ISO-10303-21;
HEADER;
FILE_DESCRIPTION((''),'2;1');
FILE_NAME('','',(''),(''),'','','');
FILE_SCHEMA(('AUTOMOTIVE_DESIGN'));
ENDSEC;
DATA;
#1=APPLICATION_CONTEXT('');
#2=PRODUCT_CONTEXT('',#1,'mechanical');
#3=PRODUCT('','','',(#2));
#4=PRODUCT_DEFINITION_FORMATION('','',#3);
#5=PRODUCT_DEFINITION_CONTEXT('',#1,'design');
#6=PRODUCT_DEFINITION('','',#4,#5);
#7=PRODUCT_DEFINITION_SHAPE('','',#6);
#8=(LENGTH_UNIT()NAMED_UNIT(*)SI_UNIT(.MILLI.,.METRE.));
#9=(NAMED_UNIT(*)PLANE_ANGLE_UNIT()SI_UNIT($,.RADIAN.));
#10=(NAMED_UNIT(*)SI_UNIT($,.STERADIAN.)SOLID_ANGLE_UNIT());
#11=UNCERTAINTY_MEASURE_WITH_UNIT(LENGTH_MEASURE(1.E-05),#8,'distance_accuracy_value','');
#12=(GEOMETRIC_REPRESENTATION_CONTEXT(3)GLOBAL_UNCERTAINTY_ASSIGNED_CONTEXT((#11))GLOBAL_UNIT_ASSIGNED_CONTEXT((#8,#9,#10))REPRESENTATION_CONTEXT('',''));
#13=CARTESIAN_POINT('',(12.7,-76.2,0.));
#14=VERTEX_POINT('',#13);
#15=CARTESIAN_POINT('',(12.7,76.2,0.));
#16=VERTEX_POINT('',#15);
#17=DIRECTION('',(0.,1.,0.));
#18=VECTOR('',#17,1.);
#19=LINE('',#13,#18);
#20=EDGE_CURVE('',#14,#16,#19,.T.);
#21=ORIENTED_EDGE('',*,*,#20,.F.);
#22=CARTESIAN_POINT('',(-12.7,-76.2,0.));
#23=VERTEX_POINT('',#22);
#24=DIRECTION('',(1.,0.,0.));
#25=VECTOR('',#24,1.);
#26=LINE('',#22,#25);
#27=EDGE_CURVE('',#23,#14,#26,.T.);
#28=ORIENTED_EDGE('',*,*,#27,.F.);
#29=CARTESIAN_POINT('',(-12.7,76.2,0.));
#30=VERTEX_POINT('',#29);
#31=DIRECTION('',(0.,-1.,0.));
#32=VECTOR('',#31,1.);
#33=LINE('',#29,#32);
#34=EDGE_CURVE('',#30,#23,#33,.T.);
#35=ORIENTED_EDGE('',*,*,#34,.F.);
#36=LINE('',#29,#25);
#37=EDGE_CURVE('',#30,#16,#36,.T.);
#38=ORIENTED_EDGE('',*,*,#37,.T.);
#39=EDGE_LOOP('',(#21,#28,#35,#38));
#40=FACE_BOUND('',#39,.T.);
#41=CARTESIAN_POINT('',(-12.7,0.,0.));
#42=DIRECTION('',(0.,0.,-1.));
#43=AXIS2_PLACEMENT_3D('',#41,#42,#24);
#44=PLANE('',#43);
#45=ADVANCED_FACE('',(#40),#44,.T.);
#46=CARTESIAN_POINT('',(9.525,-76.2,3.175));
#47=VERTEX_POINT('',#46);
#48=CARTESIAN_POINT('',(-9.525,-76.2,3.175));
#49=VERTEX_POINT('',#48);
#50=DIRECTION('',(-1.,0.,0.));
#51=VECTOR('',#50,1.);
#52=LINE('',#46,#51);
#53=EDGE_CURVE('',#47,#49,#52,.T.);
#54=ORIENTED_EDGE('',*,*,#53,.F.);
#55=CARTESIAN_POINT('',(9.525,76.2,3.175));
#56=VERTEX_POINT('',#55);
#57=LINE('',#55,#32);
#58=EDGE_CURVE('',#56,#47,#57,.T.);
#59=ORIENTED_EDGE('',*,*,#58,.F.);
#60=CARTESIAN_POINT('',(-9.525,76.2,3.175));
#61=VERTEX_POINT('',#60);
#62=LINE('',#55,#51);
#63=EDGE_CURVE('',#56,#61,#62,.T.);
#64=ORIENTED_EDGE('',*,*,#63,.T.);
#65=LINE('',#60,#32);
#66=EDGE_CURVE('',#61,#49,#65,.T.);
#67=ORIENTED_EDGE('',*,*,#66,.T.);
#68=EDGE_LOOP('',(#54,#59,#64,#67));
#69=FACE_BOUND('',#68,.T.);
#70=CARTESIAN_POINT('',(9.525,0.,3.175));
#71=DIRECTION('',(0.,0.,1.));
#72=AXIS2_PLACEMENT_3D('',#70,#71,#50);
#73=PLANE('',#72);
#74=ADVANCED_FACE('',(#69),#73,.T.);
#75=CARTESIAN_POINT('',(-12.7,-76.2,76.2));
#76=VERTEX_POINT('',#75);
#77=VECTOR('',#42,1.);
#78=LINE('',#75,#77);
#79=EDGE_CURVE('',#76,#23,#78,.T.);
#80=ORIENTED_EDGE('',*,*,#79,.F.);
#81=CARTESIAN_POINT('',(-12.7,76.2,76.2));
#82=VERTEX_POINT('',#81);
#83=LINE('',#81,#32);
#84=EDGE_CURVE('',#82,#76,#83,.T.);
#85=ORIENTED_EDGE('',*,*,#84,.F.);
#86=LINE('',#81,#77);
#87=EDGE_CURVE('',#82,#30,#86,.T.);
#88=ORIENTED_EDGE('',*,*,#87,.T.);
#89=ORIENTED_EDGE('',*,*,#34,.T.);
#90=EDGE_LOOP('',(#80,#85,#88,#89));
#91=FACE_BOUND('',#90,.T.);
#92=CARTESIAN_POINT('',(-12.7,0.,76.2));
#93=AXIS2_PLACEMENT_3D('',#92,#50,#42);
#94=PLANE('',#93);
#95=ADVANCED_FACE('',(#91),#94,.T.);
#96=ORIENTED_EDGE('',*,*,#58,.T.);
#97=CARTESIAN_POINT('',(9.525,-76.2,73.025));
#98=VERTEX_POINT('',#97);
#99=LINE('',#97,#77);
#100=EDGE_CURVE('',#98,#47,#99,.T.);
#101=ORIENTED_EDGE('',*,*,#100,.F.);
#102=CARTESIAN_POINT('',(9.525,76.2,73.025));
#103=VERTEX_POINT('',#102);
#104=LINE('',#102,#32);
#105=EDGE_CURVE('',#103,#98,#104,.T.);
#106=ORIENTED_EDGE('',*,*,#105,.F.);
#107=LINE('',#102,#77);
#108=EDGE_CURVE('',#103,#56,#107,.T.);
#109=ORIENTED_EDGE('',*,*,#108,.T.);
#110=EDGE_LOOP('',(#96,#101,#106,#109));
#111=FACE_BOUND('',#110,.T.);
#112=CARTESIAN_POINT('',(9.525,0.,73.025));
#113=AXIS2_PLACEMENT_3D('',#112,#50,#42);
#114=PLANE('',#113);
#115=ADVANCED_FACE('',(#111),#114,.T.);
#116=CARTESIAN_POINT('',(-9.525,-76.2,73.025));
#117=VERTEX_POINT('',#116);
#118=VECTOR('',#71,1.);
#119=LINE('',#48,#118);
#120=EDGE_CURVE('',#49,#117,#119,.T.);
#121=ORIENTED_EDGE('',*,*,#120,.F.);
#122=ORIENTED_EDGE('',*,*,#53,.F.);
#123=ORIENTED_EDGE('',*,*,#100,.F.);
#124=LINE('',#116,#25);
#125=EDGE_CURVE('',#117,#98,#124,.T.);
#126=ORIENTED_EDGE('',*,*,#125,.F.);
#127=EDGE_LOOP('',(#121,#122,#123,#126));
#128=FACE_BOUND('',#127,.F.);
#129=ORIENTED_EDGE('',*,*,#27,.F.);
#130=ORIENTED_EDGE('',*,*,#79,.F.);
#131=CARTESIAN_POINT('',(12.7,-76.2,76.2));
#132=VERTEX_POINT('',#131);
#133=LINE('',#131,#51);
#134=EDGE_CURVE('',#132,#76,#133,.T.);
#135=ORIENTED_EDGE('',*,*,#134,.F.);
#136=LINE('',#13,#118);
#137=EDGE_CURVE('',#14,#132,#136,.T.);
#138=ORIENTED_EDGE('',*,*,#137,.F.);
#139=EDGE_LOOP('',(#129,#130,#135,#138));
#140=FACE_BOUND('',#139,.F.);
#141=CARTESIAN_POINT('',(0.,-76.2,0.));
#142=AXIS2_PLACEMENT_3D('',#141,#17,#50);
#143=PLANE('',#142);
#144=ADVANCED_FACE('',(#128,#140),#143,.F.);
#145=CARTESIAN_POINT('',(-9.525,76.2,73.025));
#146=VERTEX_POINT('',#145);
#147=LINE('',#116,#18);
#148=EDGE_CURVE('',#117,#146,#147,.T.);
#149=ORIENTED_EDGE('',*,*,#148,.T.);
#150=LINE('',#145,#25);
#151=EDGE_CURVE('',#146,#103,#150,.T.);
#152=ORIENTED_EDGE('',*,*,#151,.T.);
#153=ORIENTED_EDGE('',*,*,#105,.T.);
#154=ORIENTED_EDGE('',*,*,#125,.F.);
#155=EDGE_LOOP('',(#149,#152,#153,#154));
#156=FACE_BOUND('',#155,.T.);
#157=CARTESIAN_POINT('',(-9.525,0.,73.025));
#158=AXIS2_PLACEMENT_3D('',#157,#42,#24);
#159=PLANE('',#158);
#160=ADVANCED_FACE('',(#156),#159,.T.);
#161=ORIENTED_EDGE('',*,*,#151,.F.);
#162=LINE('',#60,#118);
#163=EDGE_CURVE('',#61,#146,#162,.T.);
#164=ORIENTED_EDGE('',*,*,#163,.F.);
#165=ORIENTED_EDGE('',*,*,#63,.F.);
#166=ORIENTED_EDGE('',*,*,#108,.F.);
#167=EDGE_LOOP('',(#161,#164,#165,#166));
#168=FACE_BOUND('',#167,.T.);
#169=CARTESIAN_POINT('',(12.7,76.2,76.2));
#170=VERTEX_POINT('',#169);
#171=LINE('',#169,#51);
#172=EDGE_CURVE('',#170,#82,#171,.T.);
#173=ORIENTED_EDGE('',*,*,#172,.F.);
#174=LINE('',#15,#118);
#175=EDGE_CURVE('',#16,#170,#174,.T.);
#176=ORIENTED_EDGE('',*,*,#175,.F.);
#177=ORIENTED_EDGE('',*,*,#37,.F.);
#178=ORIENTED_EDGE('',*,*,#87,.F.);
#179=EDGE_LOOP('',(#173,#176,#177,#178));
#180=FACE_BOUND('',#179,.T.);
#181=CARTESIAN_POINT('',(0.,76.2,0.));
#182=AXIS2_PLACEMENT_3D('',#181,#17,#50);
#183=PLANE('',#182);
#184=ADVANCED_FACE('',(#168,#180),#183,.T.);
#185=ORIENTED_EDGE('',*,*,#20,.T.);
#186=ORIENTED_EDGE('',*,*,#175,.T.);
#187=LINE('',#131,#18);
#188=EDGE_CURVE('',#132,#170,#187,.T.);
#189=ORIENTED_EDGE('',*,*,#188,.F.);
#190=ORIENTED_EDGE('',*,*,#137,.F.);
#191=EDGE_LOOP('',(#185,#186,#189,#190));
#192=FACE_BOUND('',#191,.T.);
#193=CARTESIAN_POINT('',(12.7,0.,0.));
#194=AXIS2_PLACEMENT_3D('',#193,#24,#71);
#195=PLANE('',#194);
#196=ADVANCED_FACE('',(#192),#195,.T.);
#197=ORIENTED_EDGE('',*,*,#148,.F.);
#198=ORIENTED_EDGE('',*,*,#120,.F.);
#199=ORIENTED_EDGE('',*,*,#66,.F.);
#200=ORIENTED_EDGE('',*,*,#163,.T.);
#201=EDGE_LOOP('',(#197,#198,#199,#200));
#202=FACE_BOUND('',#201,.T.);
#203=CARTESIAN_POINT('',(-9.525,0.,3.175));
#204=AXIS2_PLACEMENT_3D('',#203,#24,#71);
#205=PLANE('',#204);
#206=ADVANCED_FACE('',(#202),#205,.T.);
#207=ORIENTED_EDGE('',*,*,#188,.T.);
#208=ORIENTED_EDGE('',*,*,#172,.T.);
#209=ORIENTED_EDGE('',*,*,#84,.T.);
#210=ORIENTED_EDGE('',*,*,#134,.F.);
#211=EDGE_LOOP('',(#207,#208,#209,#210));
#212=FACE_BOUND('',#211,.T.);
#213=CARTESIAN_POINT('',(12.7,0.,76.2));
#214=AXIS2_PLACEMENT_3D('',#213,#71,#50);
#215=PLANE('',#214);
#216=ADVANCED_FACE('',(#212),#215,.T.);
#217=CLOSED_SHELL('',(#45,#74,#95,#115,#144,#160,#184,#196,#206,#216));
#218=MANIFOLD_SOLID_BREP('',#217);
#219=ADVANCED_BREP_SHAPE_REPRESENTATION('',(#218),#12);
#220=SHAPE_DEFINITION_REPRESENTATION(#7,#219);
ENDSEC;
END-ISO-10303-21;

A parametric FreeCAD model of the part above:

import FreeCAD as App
import Part
import Sketcher
from FreeCAD import Vector
Q = App.Units.Quantity


def add_polygon(sketch, points):
    """Adds a closed chain of lines whose ends are joined by coincident constraints."""
    first, n = sketch.GeometryCount, len(points)
    for a, b in zip(points, points[1:] + points[:1]):
        sketch.addGeometry(Part.LineSegment(App.Vector(*a, 0), App.Vector(*b, 0)), False)
    for i in range(n):
        sketch.addConstraint(Sketcher.Constraint("Coincident", first + i, 2, first + (i + 1) % n, 1))

doc = App.newDocument("Part")
params = doc.addObject("Spreadsheet::Sheet", "Params")
for row, (alias, value) in enumerate([
    ("sketch1_width", "1 in"),
    ("sketch1_height", "3 in"),
    ("pad1_length", "6 in"),
], start=1):
    params.set(f"A{row}", alias)
    params.set(f"B{row}", "=" + value)
    params.setAlias(f"B{row}", alias)

body = doc.addObject("PartDesign::Body", "Body")

sketch1 = body.newObject("Sketcher::SketchObject", "Sketch")
sketch1.AttachmentSupport = (doc.getObject("XZ_Plane"), [""])
sketch1.MapMode = "FlatFace"
add_polygon(sketch1, [(-13, 76), (13, 76), (13, 0), (-13, 0)])
add_polygon(sketch1, [(10, 73), (-10, 73), (-10, 3), (10, 3)])
sketch1.addConstraint(Sketcher.Constraint("Horizontal", 0))
sketch1.addConstraint(Sketcher.Constraint("Vertical", 1))
sketch1.addConstraint(Sketcher.Constraint("Horizontal", 2))
sketch1.addConstraint(Sketcher.Constraint("Vertical", 3))
sketch1.addConstraint(Sketcher.Constraint("Horizontal", 4))
sketch1.addConstraint(Sketcher.Constraint("Vertical", 5))
sketch1.addConstraint(Sketcher.Constraint("Horizontal", 6))
sketch1.addConstraint(Sketcher.Constraint("Vertical", 7))
sketch1.addConstraint(Sketcher.Constraint("Symmetric", 1, 2, 2, 2, -1, 1))
sketch1.addConstraint(Sketcher.Constraint("DistanceX", 0, 1, 0, 2, Q("1 in")))
sketch1.addConstraint(Sketcher.Constraint("DistanceY", 1, 2, 1, 1, Q("3 in")))
sketch1.addConstraint(Sketcher.Constraint("DistanceY", -1, 1, 5, 2, Q("0.125 in")))
sketch1.addConstraint(Sketcher.Constraint("DistanceX", 3, 2, 4, 2, Q("0.125 in")))
sketch1.addConstraint(Sketcher.Constraint("DistanceY", 4, 2, 3, 2, Q("0.125 in")))
sketch1.addConstraint(Sketcher.Constraint("DistanceX", 6, 2, 1, 2, Q("0.125 in")))
sketch1.setExpression("Constraints[17]", "Params.sketch1_width")
sketch1.setExpression("Constraints[18]", "Params.sketch1_height")
pad1 = body.newObject("PartDesign::Pad", "Pad")
pad1.Profile = sketch1
pad1.setExpression("Length", "Params.pad1_length")
pad1.Midplane = True

doc.recompute()
